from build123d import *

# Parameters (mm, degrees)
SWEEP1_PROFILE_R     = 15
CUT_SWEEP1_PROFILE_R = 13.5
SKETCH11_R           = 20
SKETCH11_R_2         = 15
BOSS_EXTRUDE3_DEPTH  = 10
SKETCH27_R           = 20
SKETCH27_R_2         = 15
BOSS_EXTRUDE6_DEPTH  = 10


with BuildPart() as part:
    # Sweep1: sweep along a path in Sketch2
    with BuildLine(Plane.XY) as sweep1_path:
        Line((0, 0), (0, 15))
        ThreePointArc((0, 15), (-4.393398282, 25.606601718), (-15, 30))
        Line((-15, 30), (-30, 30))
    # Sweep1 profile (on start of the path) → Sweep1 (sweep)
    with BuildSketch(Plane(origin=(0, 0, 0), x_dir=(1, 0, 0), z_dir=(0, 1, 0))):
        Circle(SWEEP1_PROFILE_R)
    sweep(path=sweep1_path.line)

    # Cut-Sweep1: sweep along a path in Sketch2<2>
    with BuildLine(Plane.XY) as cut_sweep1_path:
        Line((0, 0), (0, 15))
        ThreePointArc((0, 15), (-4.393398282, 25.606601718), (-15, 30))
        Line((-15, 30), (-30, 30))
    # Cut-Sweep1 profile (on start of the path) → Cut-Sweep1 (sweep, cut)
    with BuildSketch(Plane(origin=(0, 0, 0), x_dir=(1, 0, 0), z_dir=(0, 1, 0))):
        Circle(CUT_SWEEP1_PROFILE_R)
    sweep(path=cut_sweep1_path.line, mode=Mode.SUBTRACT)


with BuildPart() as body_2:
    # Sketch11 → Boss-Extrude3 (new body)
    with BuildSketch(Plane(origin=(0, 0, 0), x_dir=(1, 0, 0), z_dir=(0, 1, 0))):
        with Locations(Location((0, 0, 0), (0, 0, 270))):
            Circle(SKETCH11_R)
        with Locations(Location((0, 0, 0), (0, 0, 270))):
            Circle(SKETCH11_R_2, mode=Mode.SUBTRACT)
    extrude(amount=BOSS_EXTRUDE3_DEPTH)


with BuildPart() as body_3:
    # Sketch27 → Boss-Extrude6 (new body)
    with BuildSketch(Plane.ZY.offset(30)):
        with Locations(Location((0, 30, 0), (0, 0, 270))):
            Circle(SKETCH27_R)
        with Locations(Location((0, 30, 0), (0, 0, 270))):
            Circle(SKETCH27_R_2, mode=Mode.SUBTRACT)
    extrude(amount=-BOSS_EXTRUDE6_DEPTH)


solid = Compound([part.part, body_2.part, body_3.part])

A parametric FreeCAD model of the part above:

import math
import FreeCAD as App
import Part
import Sketcher
from FreeCAD import Vector

doc = App.newDocument("Part")
body = doc.addObject("PartDesign::Body", "Body")

# Sketch on XZ plane
sketch1 = body.newObject("Sketcher::SketchObject", "Sketch")
sketch1.AttachmentSupport = (doc.getObject("XZ_Plane"), [""])
sketch1.MapMode = "FlatFace"
sketch1.addGeometry(Part.Circle(Vector(0, 0, 0), Vector(0, 0, 1), 15), False)
sketch1.addConstraint(Sketcher.Constraint("Coincident", 0, 3, -1, 1))
sketch1.addConstraint(Sketcher.Constraint("Diameter", 0, 30.0))

# Sketch on XY plane
sketch2 = body.newObject("Sketcher::SketchObject", "Sketch001")
sketch2.AttachmentSupport = (doc.getObject("XY_Plane"), [""])
sketch2.MapMode = "FlatFace"
sketch2.addGeometry(Part.LineSegment(Vector(0, 0, 0), Vector(0, 15, 0)), False)
sketch2.addGeometry(Part.ArcOfCircle(Part.Circle(Vector(-15, 15, 0), Vector(0, 0, 1), 15), math.radians(0), math.radians(90)), False)
sketch2.addGeometry(Part.LineSegment(Vector(-15, 30, 0), Vector(-30, 30, 0)), False)
sketch2.addConstraint(Sketcher.Constraint("Tangent", 0, 2, 1, 1))
sketch2.addConstraint(Sketcher.Constraint("Tangent", 1, 2, 2, 1))
sketch2.addConstraint(Sketcher.Constraint("Vertical", 0))
sketch2.addConstraint(Sketcher.Constraint("Horizontal", 2))
sketch2.addConstraint(Sketcher.Constraint("Coincident", 0, 1, -1, 1))
sketch2.addConstraint(Sketcher.Constraint("Equal", 2, 0))
sketch2.addConstraint(Sketcher.Constraint("Radius", 1, 15.0))
sketch2.addConstraint(Sketcher.Constraint("DistanceX", 2, 2, 2, 1, 15.0))
doc.recompute()

additivepipe = body.newObject("PartDesign::AdditivePipe", "AdditivePipe")
additivepipe.Profile = sketch1
additivepipe.Spine = (sketch2, ["Edge1", "Edge2", "Edge3"])

# Sketch on XZ plane
sketch3 = body.newObject("Sketcher::SketchObject", "Sketch002")
sketch3.AttachmentSupport = (doc.getObject("XZ_Plane"), [""])
sketch3.MapMode = "FlatFace"
sketch3.addGeometry(Part.Circle(Vector(0, 0, 0), Vector(0, 0, 1), 14), False)
sketch3.addConstraint(Sketcher.Constraint("Coincident", 0, 3, -1, 1))
sketch3.addConstraint(Sketcher.Constraint("Diameter", 0, 27.0))

# Sketch on XY plane
sketch4 = body.newObject("Sketcher::SketchObject", "Sketch003")
sketch4.AttachmentSupport = (doc.getObject("XY_Plane"), [""])
sketch4.MapMode = "FlatFace"
sketch4.addGeometry(Part.LineSegment(Vector(0, 0, 0), Vector(0, 15, 0)), False)
sketch4.addGeometry(Part.ArcOfCircle(Part.Circle(Vector(-15, 15, 0), Vector(0, 0, 1), 15), math.radians(0), math.radians(90)), False)
sketch4.addGeometry(Part.LineSegment(Vector(-15, 30, 0), Vector(-30, 30, 0)), False)
sketch4.addConstraint(Sketcher.Constraint("Tangent", 0, 2, 1, 1))
sketch4.addConstraint(Sketcher.Constraint("Tangent", 1, 2, 2, 1))
sketch4.addConstraint(Sketcher.Constraint("Vertical", 0))
sketch4.addConstraint(Sketcher.Constraint("Horizontal", 2))
sketch4.addConstraint(Sketcher.Constraint("Coincident", 0, 1, -1, 1))
sketch4.addConstraint(Sketcher.Constraint("Equal", 2, 0))
sketch4.addConstraint(Sketcher.Constraint("Radius", 1, 15.0))
sketch4.addConstraint(Sketcher.Constraint("DistanceX", 2, 2, 2, 1, 15.0))
doc.recompute()

subtractivepipe = body.newObject("PartDesign::SubtractivePipe", "SubtractivePipe")
subtractivepipe.Profile = sketch3
subtractivepipe.Spine = (sketch4, ["Edge1", "Edge2", "Edge3"])
body2 = doc.addObject("PartDesign::Body", "Body001")

# Sketch on XZ plane
sketch5 = body2.newObject("Sketcher::SketchObject", "Sketch004")
sketch5.AttachmentSupport = (doc.getObject("XZ_Plane001"), [""])
sketch5.MapMode = "FlatFace"
sketch5.addGeometry(Part.Circle(Vector(0, 0, 0), Vector(0, 0, 1), 20), False)
sketch5.addGeometry(Part.Circle(Vector(0, 0, 0), Vector(0, 0, 1), 15), False)
sketch5.addConstraint(Sketcher.Constraint("Coincident", 0, 3, -1, 1))
sketch5.addConstraint(Sketcher.Constraint("Coincident", 1, 3, -1, 1))
sketch5.addConstraint(Sketcher.Constraint("Diameter", 0, 40.0))
sketch5.addConstraint(Sketcher.Constraint("Diameter", 1, 30.0))
pad1 = body2.newObject("PartDesign::Pad", "Pad")
pad1.Profile = sketch5
pad1.Length = 10
pad1.Reversed = True
body3 = doc.addObject("PartDesign::Body", "Body002")

# Sketch on YZ plane
sketch6 = body3.newObject("Sketcher::SketchObject", "Sketch005")
sketch6.AttachmentSupport = (doc.getObject("YZ_Plane002"), [""])
sketch6.MapMode = "FlatFace"
sketch6.AttachmentOffset = App.Placement(Vector(0, 0, -30), App.Rotation())
sketch6.addGeometry(Part.Circle(Vector(30, 0, 0), Vector(0, 0, 1), 20), False)
sketch6.addGeometry(Part.Circle(Vector(30, 0, 0), Vector(0, 0, 1), 15), False)
sketch6.addConstraint(Sketcher.Constraint("Coincident", 1, 3, 0, 3))
sketch6.addConstraint(Sketcher.Constraint("PointOnObject", 0, 3, -1))
sketch6.addConstraint(Sketcher.Constraint("Diameter", 0, 40.0))
sketch6.addConstraint(Sketcher.Constraint("Diameter", 1, 30.0))
sketch6.addConstraint(Sketcher.Constraint("DistanceX", -1, 1, 0, 3, 30.0))
pad2 = body3.newObject("PartDesign::Pad", "Pad001")
pad2.Profile = sketch6
pad2.Length = 10

doc.recompute()
